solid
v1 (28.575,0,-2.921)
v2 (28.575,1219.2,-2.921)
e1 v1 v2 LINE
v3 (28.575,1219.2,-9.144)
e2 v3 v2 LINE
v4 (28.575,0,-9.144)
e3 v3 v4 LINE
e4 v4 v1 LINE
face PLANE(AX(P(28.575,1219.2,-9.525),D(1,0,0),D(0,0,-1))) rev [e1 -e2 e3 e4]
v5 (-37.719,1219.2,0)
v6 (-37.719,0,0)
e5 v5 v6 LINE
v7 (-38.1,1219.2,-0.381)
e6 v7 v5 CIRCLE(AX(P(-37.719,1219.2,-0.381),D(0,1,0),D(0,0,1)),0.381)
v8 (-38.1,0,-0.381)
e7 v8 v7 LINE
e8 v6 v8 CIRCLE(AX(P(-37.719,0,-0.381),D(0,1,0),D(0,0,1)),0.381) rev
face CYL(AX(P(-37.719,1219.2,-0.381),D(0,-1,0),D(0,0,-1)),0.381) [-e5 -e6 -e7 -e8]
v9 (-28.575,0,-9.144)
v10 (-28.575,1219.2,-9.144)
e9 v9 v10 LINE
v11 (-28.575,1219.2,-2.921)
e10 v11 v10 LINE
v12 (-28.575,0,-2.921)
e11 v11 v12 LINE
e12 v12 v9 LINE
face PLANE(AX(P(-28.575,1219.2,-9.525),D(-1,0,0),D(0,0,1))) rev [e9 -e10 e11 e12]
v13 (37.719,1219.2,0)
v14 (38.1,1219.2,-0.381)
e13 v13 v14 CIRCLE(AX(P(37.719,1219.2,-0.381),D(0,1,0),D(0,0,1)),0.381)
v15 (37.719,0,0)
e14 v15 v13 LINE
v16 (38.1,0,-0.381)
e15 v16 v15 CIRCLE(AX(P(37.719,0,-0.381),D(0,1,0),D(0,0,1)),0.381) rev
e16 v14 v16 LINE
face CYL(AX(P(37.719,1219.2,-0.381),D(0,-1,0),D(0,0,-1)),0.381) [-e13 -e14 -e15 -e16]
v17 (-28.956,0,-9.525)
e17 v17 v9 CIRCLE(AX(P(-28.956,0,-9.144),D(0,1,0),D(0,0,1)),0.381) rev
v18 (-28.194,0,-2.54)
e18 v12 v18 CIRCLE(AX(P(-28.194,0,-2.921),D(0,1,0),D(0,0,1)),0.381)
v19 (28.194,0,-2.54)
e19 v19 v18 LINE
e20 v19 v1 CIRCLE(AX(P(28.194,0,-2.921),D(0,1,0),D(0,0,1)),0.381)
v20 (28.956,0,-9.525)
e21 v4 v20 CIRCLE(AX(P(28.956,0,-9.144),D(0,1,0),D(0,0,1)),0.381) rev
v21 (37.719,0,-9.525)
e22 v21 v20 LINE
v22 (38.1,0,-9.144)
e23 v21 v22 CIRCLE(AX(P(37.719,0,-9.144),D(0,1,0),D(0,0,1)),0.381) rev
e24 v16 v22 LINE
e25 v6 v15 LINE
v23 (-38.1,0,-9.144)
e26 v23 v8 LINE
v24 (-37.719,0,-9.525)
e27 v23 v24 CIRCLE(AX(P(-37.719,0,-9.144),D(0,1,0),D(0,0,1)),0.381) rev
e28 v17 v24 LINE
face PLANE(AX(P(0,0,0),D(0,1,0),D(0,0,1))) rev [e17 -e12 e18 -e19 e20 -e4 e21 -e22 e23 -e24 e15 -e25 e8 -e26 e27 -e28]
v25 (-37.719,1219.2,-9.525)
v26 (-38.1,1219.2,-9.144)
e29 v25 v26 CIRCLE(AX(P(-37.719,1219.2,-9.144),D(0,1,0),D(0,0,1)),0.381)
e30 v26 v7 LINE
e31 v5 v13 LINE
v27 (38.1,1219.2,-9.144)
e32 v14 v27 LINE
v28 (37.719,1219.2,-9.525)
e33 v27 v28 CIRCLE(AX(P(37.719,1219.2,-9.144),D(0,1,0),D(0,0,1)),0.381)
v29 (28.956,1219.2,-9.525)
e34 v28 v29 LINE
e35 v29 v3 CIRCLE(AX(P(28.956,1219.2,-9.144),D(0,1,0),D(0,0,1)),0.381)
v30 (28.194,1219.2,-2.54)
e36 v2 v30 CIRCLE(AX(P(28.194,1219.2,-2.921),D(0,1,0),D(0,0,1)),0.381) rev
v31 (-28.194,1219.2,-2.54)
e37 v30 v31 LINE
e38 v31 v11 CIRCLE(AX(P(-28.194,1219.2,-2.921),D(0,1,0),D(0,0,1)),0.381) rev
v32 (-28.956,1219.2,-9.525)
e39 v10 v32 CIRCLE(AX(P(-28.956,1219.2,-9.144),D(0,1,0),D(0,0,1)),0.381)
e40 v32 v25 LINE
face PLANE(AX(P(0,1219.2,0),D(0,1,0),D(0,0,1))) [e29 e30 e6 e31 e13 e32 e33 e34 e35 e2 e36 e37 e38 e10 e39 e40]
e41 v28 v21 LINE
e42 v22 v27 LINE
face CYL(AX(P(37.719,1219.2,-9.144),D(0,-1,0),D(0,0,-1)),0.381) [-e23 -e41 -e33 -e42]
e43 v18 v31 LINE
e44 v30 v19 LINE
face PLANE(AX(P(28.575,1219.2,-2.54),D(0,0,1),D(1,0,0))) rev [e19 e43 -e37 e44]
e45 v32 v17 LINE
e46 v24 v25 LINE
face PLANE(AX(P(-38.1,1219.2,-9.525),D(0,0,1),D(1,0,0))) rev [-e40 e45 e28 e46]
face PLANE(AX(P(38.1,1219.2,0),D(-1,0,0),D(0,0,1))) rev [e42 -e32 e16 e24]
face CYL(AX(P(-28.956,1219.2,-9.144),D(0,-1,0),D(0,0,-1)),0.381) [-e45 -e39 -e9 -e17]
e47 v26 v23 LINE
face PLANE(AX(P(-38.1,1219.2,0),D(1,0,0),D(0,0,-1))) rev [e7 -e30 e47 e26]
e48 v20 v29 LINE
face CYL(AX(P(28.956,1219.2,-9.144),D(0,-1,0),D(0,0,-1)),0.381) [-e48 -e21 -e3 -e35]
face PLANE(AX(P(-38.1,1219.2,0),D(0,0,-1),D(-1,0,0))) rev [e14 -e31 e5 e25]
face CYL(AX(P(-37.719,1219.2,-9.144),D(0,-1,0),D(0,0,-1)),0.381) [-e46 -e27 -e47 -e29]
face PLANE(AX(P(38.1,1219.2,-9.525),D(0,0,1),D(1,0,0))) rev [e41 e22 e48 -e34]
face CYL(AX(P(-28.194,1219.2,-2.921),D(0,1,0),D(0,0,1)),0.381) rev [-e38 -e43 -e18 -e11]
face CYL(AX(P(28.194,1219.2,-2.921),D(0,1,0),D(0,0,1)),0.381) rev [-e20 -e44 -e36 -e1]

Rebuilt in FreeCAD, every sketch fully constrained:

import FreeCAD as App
import Part
import Sketcher

V = App.Vector
Q = App.Units.Quantity


def edges_at(feature, points):
    """Names of the edges that pass closest to the given points."""
    edges = feature.Shape.Edges
    near = lambda p: min(range(len(edges)), key=lambda i: edges[i].distToShape(Part.Vertex(*p))[0])
    return sorted({f"Edge{near(p) + 1}" for p in points})


def add_polygon(sketch, points):
    """Adds a closed chain of lines whose ends are joined by coincident constraints."""
    first, n = sketch.GeometryCount, len(points)
    for a, b in zip(points, points[1:] + points[:1]):
        sketch.addGeometry(Part.LineSegment(App.Vector(*a, 0), App.Vector(*b, 0)), False)
    for i in range(n):
        sketch.addConstraint(Sketcher.Constraint("Coincident", first + i, 2, first + (i + 1) % n, 1))

doc = App.newDocument("Part")
params = doc.addObject("Spreadsheet::Sheet", "Params")
for row, (alias, value) in enumerate([
    ("sketch1_width", "3 in"),
    ("sketch1_width2", "2.25 in"),
    ("pad1_length", "48 in"),
    ("fillet_radius", "0.015 in"),
], start=1):
    params.set(f"A{row}", alias)
    params.set(f"B{row}", "=" + value)
    params.setAlias(f"B{row}", alias)

body = doc.addObject("PartDesign::Body", "Body")

# Sketch on XZ plane
sketch1 = body.newObject("Sketcher::SketchObject", "Sketch")
sketch1.AttachmentSupport = (doc.getObject("XZ_Plane"), [""])
sketch1.MapMode = "FlatFace"
add_polygon(sketch1, [(-38, 0), (38, 0), (38, -10), (29, -10), (29, -3), (-29, -3), (-29, -10), (-38, -10)])  # lines 0-7
sketch1.addConstraint([
    Sketcher.Constraint("Horizontal", 0),
    Sketcher.Constraint("Vertical", 1),
    Sketcher.Constraint("Horizontal", 2),
    Sketcher.Constraint("Vertical", 3),
    Sketcher.Constraint("Horizontal", 4),
    Sketcher.Constraint("Vertical", 5),
    Sketcher.Constraint("Horizontal", 6),
    Sketcher.Constraint("Vertical", 7),
    Sketcher.Constraint("Symmetric", 0, 2, 7, 2, -1, 1),
    Sketcher.Constraint("Symmetric", 2, 2, 5, 2, -2),
    Sketcher.Constraint("Equal", 6, 1),
    Sketcher.Constraint("DistanceX", 0, 1, 0, 2, Q("3 in")),
    Sketcher.Constraint("DistanceX", 4, 2, 4, 1, Q("2.25 in")),
    Sketcher.Constraint("DistanceY", 3, 2, -1, 1, Q("0.1 in")),
])
sketch1.setExpression("Constraints[19]", "Params.sketch1_width")
sketch1.setExpression("Constraints[20]", "Params.sketch1_width2")
pad1 = body.newObject("PartDesign::Pad", "Pad")
pad1.Profile = sketch1
pad1.setExpression("Length", "Params.pad1_length")
pad1.Reversed = True
doc.recompute()

fillet = body.newObject("PartDesign::Fillet", "Fillet")
fillet.Base = (pad1, edges_at(pad1, [
    (38.1, 609.6, 0),
    (-38.1, 609.6, 0),
    (-38.1, 609.6, -9.525),
    (-28.575, 609.6, -9.525),
    (-28.575, 609.6, -2.54),
    (28.575, 609.6, -2.54),
    (28.575, 609.6, -9.525),
    (38.1, 609.6, -9.525),
]))
fillet.setExpression("Radius", "Params.fillet_radius")

doc.recompute()
